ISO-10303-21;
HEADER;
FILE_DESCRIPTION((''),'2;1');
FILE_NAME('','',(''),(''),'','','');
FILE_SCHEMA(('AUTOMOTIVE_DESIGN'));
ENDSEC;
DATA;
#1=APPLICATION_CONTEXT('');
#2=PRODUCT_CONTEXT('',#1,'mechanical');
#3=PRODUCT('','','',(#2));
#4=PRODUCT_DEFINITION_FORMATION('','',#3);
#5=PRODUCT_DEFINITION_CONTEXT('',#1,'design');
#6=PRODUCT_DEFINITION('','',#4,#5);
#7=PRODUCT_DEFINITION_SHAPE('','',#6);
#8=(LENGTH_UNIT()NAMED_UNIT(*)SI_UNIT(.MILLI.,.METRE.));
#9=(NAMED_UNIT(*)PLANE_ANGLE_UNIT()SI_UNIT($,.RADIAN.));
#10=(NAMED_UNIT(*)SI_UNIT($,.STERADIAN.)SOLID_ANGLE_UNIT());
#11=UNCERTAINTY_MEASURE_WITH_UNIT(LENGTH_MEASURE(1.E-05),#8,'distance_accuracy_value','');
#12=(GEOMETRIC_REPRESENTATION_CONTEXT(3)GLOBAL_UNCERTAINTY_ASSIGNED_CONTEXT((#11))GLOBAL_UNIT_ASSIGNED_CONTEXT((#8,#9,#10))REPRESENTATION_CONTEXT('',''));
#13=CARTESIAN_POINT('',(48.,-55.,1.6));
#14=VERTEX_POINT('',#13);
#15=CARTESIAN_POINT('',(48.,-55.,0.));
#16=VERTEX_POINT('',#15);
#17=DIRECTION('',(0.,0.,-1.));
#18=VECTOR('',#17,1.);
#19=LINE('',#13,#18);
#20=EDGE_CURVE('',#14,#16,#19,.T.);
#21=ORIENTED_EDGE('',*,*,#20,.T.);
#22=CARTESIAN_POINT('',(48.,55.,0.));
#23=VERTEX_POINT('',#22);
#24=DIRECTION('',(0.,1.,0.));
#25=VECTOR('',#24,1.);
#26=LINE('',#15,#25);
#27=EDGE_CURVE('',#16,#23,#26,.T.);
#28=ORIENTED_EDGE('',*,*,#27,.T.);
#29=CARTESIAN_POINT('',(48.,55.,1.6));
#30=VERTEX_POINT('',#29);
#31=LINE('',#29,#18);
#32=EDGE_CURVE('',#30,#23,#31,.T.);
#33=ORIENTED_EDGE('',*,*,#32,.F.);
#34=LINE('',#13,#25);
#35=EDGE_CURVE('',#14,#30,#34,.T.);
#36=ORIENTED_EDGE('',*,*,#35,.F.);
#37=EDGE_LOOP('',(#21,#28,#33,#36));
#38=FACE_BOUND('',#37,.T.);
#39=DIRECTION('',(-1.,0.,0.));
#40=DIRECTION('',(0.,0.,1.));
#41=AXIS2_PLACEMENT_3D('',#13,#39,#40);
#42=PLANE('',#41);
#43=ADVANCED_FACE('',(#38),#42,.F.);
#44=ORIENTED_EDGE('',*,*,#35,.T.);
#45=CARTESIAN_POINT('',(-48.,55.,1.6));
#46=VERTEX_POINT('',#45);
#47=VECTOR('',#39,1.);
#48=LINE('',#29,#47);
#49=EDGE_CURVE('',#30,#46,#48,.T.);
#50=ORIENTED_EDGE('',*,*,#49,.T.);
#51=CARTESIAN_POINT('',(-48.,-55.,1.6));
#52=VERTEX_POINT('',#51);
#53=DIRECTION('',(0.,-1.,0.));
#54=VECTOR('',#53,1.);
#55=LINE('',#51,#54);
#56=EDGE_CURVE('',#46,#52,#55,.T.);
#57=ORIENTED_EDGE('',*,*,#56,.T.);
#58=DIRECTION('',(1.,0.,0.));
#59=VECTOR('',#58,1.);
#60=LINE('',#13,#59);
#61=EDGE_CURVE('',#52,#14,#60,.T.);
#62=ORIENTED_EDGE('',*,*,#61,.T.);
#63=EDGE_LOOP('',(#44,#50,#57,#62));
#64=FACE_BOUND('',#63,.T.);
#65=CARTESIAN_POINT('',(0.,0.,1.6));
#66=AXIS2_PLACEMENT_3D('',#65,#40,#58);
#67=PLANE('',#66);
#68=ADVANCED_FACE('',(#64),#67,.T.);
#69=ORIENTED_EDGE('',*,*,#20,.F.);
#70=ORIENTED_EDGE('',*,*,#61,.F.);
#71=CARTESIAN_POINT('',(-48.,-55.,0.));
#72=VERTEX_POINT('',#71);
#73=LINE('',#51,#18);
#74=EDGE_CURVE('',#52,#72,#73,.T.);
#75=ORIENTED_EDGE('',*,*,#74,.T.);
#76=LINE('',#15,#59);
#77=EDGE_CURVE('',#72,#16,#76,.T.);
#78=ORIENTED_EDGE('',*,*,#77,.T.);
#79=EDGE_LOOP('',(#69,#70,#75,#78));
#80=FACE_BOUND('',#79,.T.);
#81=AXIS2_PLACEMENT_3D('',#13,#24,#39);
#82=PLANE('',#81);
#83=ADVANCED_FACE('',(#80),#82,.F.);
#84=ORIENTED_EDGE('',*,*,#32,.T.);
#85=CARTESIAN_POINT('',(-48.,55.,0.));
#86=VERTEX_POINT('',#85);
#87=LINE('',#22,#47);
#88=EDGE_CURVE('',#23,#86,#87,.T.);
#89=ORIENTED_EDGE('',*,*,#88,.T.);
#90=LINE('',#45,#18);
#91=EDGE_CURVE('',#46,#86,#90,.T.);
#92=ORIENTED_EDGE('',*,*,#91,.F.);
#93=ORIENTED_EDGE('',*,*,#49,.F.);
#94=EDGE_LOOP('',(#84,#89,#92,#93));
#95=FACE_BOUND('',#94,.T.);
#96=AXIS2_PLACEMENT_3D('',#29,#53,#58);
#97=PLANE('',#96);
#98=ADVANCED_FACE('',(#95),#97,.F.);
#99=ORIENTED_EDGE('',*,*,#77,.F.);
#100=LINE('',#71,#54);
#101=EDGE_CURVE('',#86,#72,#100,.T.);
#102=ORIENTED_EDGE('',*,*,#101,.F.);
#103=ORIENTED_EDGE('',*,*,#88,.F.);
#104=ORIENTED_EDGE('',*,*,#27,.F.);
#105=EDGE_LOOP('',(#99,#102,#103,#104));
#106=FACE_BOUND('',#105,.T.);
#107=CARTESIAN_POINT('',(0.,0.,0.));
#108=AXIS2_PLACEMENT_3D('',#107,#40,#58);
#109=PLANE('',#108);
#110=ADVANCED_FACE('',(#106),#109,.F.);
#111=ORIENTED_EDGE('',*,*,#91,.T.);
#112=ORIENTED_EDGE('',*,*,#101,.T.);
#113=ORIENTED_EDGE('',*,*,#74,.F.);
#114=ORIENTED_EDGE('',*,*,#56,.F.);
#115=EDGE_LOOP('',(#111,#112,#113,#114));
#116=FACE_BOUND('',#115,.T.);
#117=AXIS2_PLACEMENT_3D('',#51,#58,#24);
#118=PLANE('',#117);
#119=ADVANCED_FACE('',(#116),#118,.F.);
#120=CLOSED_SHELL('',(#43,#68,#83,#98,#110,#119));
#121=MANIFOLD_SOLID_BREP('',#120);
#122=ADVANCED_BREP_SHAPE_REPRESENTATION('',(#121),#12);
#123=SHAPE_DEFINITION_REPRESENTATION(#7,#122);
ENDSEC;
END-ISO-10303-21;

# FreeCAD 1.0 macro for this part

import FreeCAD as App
import Part
import Sketcher
from FreeCAD import Vector

doc = App.newDocument("Part")
params = doc.addObject("Spreadsheet::Sheet", "Params")
for row, (alias, value) in enumerate([
    ("sketch1_width", "96 mm"),
    ("sketch1_height", "110 mm"),
    ("pad1_length", "1.6 mm"),
], start=1):
    params.set(f"A{row}", alias)
    params.set(f"B{row}", "=" + value)
    params.setAlias(f"B{row}", alias)

body = doc.addObject("PartDesign::Body", "Body")

sketch1 = body.newObject("Sketcher::SketchObject", "Sketch")
sketch1.AttachmentSupport = (doc.getObject("XY_Plane"), [""])
sketch1.MapMode = "FlatFace"
sketch1.addGeometry(Part.LineSegment(Vector(-48, 55, 0), Vector(-48, -55, 0)), False)
sketch1.addGeometry(Part.LineSegment(Vector(-48, -55, 0), Vector(48, -55, 0)), False)
sketch1.addGeometry(Part.LineSegment(Vector(48, -55, 0), Vector(48, 55, 0)), False)
sketch1.addGeometry(Part.LineSegment(Vector(48, 55, 0), Vector(-48, 55, 0)), False)
sketch1.addConstraint(Sketcher.Constraint("Coincident", 0, 2, 1, 1))
sketch1.addConstraint(Sketcher.Constraint("Coincident", 1, 2, 2, 1))
sketch1.addConstraint(Sketcher.Constraint("Coincident", 2, 2, 3, 1))
sketch1.addConstraint(Sketcher.Constraint("Coincident", 3, 2, 0, 1))
sketch1.addConstraint(Sketcher.Constraint("Vertical", 0))
sketch1.addConstraint(Sketcher.Constraint("Horizontal", 1))
sketch1.addConstraint(Sketcher.Constraint("Vertical", 2))
sketch1.addConstraint(Sketcher.Constraint("Horizontal", 3))
sketch1.addConstraint(Sketcher.Constraint("Symmetric", 0, 2, 2, 2, -1, 1))
sketch1.addConstraint(Sketcher.Constraint("DistanceX", 1, 1, 1, 2, 96.0))
sketch1.addConstraint(Sketcher.Constraint("DistanceY", 0, 2, 0, 1, 110.0))
sketch1.setExpression("Constraints[9]", "Params.sketch1_width")
sketch1.setExpression("Constraints[10]", "Params.sketch1_height")
pad1 = body.newObject("PartDesign::Pad", "Pad")
pad1.Profile = sketch1
pad1.setExpression("Length", "Params.pad1_length")

doc.recompute()
